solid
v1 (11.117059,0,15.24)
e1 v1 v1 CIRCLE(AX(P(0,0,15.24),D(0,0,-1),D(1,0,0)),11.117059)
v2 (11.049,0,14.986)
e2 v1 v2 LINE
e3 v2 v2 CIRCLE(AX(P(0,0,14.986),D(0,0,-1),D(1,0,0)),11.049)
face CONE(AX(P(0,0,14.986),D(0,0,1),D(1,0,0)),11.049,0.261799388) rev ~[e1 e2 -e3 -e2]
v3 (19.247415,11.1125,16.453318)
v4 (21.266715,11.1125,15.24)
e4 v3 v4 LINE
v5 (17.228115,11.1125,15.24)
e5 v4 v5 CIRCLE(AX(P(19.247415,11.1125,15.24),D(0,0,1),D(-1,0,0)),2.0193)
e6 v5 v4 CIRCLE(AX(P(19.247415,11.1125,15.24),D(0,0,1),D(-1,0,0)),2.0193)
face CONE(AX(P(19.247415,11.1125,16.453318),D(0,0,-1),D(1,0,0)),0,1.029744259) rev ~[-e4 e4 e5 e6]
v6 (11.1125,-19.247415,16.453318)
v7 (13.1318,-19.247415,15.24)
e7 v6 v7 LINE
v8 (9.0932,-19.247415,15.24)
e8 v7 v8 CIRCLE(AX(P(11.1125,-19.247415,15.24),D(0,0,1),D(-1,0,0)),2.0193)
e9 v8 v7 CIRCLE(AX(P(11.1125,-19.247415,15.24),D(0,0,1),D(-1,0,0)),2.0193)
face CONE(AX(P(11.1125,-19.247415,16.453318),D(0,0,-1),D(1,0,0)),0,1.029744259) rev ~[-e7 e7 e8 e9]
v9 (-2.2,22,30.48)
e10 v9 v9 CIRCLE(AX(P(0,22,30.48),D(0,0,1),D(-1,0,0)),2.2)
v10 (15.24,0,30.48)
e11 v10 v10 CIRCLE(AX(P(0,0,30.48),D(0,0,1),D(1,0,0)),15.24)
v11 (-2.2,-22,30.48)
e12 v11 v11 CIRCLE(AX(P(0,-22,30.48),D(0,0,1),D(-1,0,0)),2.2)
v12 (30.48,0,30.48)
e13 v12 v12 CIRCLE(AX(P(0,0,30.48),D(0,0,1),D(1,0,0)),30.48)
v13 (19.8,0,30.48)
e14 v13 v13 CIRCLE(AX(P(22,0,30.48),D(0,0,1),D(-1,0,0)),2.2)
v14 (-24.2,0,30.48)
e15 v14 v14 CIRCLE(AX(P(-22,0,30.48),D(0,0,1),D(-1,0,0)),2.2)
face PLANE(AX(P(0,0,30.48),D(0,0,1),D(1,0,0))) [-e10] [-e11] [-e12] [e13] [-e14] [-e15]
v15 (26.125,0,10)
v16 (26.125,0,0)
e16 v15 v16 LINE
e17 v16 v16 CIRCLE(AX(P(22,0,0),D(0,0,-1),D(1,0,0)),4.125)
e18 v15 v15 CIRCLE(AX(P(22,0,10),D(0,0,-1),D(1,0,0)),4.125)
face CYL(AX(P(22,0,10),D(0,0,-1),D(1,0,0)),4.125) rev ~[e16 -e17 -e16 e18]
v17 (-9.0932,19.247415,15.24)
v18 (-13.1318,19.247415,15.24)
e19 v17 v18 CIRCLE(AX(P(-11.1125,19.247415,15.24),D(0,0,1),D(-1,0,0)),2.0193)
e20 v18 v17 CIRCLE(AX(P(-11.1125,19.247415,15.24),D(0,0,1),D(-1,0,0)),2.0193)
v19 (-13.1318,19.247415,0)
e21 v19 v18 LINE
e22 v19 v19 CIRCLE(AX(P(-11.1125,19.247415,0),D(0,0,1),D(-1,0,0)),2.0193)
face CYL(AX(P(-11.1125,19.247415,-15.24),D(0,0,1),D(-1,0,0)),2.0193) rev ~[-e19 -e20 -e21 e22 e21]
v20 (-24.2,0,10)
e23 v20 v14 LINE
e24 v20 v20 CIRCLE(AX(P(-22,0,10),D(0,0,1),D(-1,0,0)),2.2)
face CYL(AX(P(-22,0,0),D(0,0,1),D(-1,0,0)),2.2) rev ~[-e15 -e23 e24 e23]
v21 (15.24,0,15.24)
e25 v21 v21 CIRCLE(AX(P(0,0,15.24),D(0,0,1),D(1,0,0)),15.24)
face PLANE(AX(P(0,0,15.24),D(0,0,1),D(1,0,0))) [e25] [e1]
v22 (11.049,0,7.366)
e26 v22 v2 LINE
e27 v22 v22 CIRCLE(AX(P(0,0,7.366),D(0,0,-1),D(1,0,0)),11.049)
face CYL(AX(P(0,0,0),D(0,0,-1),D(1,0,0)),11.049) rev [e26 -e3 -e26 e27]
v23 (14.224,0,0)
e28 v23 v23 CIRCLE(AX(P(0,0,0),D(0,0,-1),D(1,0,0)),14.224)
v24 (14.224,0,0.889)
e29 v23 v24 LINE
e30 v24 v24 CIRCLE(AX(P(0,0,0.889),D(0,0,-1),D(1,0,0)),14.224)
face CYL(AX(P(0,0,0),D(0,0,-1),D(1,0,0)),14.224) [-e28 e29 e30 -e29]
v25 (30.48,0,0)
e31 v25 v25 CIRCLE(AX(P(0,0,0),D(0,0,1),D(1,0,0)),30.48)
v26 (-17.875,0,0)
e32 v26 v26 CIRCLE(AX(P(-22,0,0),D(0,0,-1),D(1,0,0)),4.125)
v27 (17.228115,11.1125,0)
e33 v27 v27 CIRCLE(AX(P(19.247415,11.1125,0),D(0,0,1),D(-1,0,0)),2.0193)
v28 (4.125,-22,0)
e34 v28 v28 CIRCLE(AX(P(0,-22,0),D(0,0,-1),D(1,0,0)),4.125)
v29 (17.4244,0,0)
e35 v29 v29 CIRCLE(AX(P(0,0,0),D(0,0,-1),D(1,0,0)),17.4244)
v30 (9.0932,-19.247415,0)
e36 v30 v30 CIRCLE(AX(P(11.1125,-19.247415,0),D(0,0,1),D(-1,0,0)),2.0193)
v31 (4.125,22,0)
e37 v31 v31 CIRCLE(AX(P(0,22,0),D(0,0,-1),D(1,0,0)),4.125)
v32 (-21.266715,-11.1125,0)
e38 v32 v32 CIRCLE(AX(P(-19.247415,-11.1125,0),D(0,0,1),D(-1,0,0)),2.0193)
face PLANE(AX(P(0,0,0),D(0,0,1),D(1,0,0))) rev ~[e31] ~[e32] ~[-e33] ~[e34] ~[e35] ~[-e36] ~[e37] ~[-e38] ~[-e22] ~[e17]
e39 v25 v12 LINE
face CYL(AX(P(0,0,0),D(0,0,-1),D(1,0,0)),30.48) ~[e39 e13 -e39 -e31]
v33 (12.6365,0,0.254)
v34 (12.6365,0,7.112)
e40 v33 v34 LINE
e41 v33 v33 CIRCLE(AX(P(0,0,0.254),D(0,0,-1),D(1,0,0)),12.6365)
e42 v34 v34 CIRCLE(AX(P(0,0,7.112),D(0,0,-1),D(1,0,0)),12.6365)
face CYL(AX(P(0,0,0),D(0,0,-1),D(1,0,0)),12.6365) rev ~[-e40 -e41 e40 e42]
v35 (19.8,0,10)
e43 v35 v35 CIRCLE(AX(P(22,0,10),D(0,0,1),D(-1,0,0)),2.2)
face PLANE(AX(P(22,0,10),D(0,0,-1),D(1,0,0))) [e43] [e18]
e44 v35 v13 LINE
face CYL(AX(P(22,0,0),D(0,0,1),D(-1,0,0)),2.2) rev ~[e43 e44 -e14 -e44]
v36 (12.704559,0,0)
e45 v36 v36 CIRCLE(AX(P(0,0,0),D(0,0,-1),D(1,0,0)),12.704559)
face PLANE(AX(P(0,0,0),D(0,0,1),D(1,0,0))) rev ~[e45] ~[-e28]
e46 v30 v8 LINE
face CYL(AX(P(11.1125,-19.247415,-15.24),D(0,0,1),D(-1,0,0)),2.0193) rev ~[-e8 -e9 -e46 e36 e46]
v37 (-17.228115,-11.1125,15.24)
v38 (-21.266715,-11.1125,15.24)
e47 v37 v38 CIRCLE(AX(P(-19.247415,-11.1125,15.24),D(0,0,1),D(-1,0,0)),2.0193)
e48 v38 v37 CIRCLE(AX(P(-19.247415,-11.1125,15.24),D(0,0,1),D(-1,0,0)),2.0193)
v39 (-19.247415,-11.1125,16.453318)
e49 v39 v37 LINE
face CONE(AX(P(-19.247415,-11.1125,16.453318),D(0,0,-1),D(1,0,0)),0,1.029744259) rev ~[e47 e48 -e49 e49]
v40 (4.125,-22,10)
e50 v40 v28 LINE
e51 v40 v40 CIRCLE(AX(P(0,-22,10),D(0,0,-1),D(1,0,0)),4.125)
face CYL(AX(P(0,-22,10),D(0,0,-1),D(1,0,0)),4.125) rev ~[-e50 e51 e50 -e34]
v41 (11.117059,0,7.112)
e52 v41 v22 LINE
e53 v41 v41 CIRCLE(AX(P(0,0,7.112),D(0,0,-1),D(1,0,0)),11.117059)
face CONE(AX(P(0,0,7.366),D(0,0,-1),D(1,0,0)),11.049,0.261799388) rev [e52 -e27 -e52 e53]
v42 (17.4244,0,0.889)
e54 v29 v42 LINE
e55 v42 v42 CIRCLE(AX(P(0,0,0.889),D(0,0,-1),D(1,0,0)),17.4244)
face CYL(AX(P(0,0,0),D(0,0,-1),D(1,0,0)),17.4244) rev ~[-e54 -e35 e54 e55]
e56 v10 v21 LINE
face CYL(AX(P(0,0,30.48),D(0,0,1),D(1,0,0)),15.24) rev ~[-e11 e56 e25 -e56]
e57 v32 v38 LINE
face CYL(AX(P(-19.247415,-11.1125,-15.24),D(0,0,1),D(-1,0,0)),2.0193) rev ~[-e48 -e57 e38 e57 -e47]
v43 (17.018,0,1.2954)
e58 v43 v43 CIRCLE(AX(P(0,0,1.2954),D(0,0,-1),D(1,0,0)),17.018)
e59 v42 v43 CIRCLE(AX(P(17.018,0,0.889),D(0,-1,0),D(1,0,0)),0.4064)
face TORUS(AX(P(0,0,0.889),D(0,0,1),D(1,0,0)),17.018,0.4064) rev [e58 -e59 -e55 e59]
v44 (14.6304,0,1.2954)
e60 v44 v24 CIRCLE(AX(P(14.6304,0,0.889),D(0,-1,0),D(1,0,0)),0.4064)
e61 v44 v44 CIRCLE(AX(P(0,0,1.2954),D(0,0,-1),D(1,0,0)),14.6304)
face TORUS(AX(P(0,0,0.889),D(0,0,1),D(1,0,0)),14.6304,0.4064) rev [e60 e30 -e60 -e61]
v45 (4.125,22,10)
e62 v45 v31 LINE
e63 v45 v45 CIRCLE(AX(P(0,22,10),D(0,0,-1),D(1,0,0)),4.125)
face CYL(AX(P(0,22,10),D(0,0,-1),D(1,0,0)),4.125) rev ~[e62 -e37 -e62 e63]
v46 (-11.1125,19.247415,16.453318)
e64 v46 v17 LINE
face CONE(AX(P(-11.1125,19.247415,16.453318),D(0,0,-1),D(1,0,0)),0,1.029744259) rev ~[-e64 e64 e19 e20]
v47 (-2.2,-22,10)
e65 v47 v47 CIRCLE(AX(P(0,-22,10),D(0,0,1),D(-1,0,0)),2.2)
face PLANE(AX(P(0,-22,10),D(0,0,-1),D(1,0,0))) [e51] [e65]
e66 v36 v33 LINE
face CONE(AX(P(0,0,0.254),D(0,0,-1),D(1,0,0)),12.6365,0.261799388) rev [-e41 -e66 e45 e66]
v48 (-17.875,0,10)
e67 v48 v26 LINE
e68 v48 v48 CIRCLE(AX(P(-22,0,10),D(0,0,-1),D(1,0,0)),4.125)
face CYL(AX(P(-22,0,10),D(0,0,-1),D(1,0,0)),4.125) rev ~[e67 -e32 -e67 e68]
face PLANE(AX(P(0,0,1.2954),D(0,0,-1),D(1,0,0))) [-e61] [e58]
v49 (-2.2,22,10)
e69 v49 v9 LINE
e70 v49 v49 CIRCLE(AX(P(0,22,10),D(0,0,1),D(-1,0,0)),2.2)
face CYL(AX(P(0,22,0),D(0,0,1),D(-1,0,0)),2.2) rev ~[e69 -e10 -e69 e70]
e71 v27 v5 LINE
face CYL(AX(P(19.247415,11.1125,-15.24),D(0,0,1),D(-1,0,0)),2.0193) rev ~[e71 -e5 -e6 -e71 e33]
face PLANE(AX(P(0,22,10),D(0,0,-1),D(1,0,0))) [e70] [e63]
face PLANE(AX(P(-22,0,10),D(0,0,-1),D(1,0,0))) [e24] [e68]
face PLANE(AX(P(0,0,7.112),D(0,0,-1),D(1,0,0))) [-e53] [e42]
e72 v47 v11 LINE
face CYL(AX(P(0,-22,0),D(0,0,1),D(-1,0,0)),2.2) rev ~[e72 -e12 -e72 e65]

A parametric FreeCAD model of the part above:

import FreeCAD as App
import Part
import Sketcher
Q = App.Units.Quantity


def edges_at(feature, points):
    """Names of the edges that pass closest to the given points."""
    edges = feature.Shape.Edges
    near = lambda p: min(range(len(edges)), key=lambda i: edges[i].distToShape(Part.Vertex(*p))[0])
    return sorted({f"Edge{near(p) + 1}" for p in points})

doc = App.newDocument("Part")
params = doc.addObject("Spreadsheet::Sheet", "Params")
for row, (alias, value) in enumerate([
    ("sketch1_diameter", "2.4 in"),
    ("sketch1_diameter2", "0.87 in"),
    ("pad1_length", "1.2 in"),
    ("sketch2_diameter", "1.2 in"),
    ("pocket1_length", "0.6 in"),
    ("sketch3_diameter", "0.87 in"),
    ("sketch3_diameter2", "0.995 in"),
    ("pocket2_length", "0.28 in"),
    ("chamfer_size", "0.068059 mm"),
    ("chamfer_size2", "0.01 in"),
    ("hole_diameter", "4.4 mm"),
    ("hole_cbore_diameter", "8.25 mm"),
    ("hole_cbore_depth", "10 mm"),
    ("sketch5_diameter", "0.159 in"),
    ("hole2_diameter", "0.159 in"),
    ("hole2_depth", "0.6 in"),
    ("sketch6_diameter", "1.12 in"),
    ("sketch6_diameter2", "1.372 in"),
    ("pocket3_length", "0.051 in"),
    ("fillet_radius", "0.016 in"),
], start=1):
    params.set(f"A{row}", alias)
    params.set(f"B{row}", "=" + value)
    params.setAlias(f"B{row}", alias)

body = doc.addObject("PartDesign::Body", "Body")

# Sketch on XY plane
sketch1 = body.newObject("Sketcher::SketchObject", "Sketch")
sketch1.AttachmentSupport = (doc.getObject("XY_Plane"), [""])
sketch1.MapMode = "FlatFace"
sketch1.addGeometry([
    Part.Circle(App.Vector(0, 0, 0), App.Vector(0, 0, 1), 30),
    Part.Circle(App.Vector(0, 0, 0), App.Vector(0, 0, 1), 11),
], False)
sketch1.addConstraint([
    Sketcher.Constraint("Coincident", 0, 3, -1, 1),
    Sketcher.Constraint("Coincident", 1, 3, -1, 1),
    Sketcher.Constraint("Diameter", 0, Q("2.4 in")),
    Sketcher.Constraint("Diameter", 1, Q("0.87 in")),
])
sketch1.setExpression("Constraints[2]", "Params.sketch1_diameter")
sketch1.setExpression("Constraints[3]", "Params.sketch1_diameter2")
pad1 = body.newObject("PartDesign::Pad", "Pad")
pad1.Profile = sketch1
pad1.setExpression("Length", "Params.pad1_length")

# Sketch on XY plane
sketch2 = body.newObject("Sketcher::SketchObject", "Sketch001")
sketch2.AttachmentSupport = (doc.getObject("XY_Plane"), [""])
sketch2.MapMode = "FlatFace"
sketch2.AttachmentOffset = App.Placement(App.Vector(0, 0, 1.2 * 25.4), App.Rotation())
sketch2.addGeometry(Part.Circle(App.Vector(0, 0, 0), App.Vector(0, 0, 1), 15), False)
sketch2.addConstraint([
    Sketcher.Constraint("Coincident", 0, 3, -1, 1),
    Sketcher.Constraint("Diameter", 0, Q("1.2 in")),
])
sketch2.setExpression("Constraints[1]", "Params.sketch2_diameter")
pocket1 = body.newObject("PartDesign::Pocket", "Pocket")
pocket1.Profile = sketch2
pocket1.setExpression("Length", "Params.pocket1_length")

# Sketch on XY plane
sketch3 = body.newObject("Sketcher::SketchObject", "Sketch002")
sketch3.AttachmentSupport = (doc.getObject("XY_Plane"), [""])
sketch3.MapMode = "FlatFace"
sketch3.addGeometry([
    Part.Circle(App.Vector(0, 0, 0), App.Vector(0, 0, 1), 13),
    Part.Circle(App.Vector(0, 0, 0), App.Vector(0, 0, 1), 11),
], False)
sketch3.addConstraint([
    Sketcher.Constraint("Coincident", 0, 3, -1, 1),
    Sketcher.Constraint("Coincident", 1, 3, -1, 1),
    Sketcher.Constraint("Diameter", 1, Q("0.87 in")),
    Sketcher.Constraint("Diameter", 0, Q("0.995 in")),
])
sketch3.setExpression("Constraints[2]", "Params.sketch3_diameter")
sketch3.setExpression("Constraints[3]", "Params.sketch3_diameter2")
pocket2 = body.newObject("PartDesign::Pocket", "Pocket001")
pocket2.Profile = sketch3
pocket2.setExpression("Length", "Params.pocket2_length")
pocket2.Reversed = True
doc.recompute()

chamfer = body.newObject("PartDesign::Chamfer", "Chamfer")
chamfer.Base = (pocket2, edges_at(pocket2, [(-11.049, 0, 15.24), (-12.636, 0, 0), (-11.049, 0, 7.112)]))
chamfer.ChamferType = "Two distances"
chamfer.setExpression("Size", "Params.chamfer_size")
chamfer.setExpression("Size2", "Params.chamfer_size2")

# Sketch on XY plane
sketch4 = body.newObject("Sketcher::SketchObject", "Sketch003")
sketch4.AttachmentSupport = (doc.getObject("XY_Plane"), [""])
sketch4.MapMode = "FlatFace"
sketch4.addGeometry([
    Part.Circle(App.Vector(0, 22, 0), App.Vector(0, 0, 1), 2.2),
    Part.Circle(App.Vector(-22, 0, 0), App.Vector(0, 0, 1), 2.2),
    Part.Circle(App.Vector(0, -22, 0), App.Vector(0, 0, 1), 2.2),
    Part.Circle(App.Vector(22, 0, 0), App.Vector(0, 0, 1), 2.2),
], False)
sketch4.addConstraint([
    Sketcher.Constraint("Equal", 0, 1),
    Sketcher.Constraint("Equal", 1, 2),
    Sketcher.Constraint("Equal", 2, 3),
    Sketcher.Constraint("Symmetric", 0, 3, 2, 3, -1, 1),
    Sketcher.Constraint("Symmetric", 1, 3, 3, 3, -1, 1),
    Sketcher.Constraint("PointOnObject", 0, 3, -2),
    Sketcher.Constraint("PointOnObject", 1, 3, -1),
    Sketcher.Constraint("Diameter", 0, Q("4.4 mm")),
    Sketcher.Constraint("DistanceY", -1, 1, 0, 3, Q("22 mm")),
    Sketcher.Constraint("DistanceX", 1, 3, -1, 1, Q("22 mm")),
])
doc.recompute()
hole = body.newObject("PartDesign::Hole", "Hole")
hole.Profile = sketch4
hole.ThreadType = "None"
hole.setExpression("Diameter", "Params.hole_diameter")
hole.DepthType = "ThroughAll"
hole.HoleCutType = "Counterbore"
hole.setExpression("HoleCutDiameter", "Params.hole_cbore_diameter")
hole.setExpression("HoleCutDepth", "Params.hole_cbore_depth")
hole.Reversed = True

# Sketch on XY plane
sketch5 = body.newObject("Sketcher::SketchObject", "Sketch004")
sketch5.AttachmentSupport = (doc.getObject("XY_Plane"), [""])
sketch5.MapMode = "FlatFace"
sketch5.addGeometry([
    Part.Circle(App.Vector(-19.2, -11.1, 0), App.Vector(0, 0, 1), 2),
    Part.Circle(App.Vector(11.1, -19.2, 0), App.Vector(0, 0, 1), 2),
    Part.Circle(App.Vector(19.2, 11.1, 0), App.Vector(0, 0, 1), 2),
    Part.Circle(App.Vector(-11.1, 19.2, 0), App.Vector(0, 0, 1), 2),
], False)
sketch5.addConstraint([
    Sketcher.Constraint("Equal", 0, 1),
    Sketcher.Constraint("Equal", 1, 2),
    Sketcher.Constraint("Equal", 2, 3),
    Sketcher.Constraint("Symmetric", 0, 3, 2, 3, -1, 1),
    Sketcher.Constraint("Symmetric", 1, 3, 3, 3, -1, 1),
    Sketcher.Constraint("Diameter", 0, Q("0.159 in")),
    Sketcher.Constraint("DistanceY", 0, 3, -1, 1, Q("0.4375 in")),
    Sketcher.Constraint("DistanceX", -1, 1, 1, 3, Q("0.4375 in")),
    Sketcher.Constraint("DistanceX", 0, 3, 2, 3, Q("38.494829 mm")),
    Sketcher.Constraint("DistanceY", 1, 3, 3, 3, Q("38.494829 mm")),
])
sketch5.setExpression("Constraints[5]", "Params.sketch5_diameter")
doc.recompute()
hole2 = body.newObject("PartDesign::Hole", "Hole001")
hole2.Profile = sketch5
hole2.ThreadType = "None"
hole2.setExpression("Diameter", "Params.hole2_diameter")
hole2.DepthType = "Dimension"
hole2.setExpression("Depth", "Params.hole2_depth")
hole2.DrillPoint = "Angled"
hole2.DrillPointAngle = 118
hole2.Reversed = True

# Sketch on XY plane
sketch6 = body.newObject("Sketcher::SketchObject", "Sketch005")
sketch6.AttachmentSupport = (doc.getObject("XY_Plane"), [""])
sketch6.MapMode = "FlatFace"
sketch6.addGeometry([
    Part.Circle(App.Vector(0, 0, 0), App.Vector(0, 0, 1), 17),
    Part.Circle(App.Vector(0, 0, 0), App.Vector(0, 0, 1), 14),
], False)
sketch6.addConstraint([
    Sketcher.Constraint("Coincident", 0, 3, -1, 1),
    Sketcher.Constraint("Coincident", 1, 3, -1, 1),
    Sketcher.Constraint("Diameter", 1, Q("1.12 in")),
    Sketcher.Constraint("Diameter", 0, Q("1.372 in")),
])
sketch6.setExpression("Constraints[2]", "Params.sketch6_diameter")
sketch6.setExpression("Constraints[3]", "Params.sketch6_diameter2")
pocket3 = body.newObject("PartDesign::Pocket", "Pocket002")
pocket3.Profile = sketch6
pocket3.setExpression("Length", "Params.pocket3_length")
pocket3.Reversed = True
doc.recompute()

fillet = body.newObject("PartDesign::Fillet", "Fillet")
fillet.Base = (pocket3, edges_at(pocket3, [(-14.224, 0, 1.295), (-17.424, 0, 1.295)]))
fillet.setExpression("Radius", "Params.fillet_radius")

doc.recompute()
